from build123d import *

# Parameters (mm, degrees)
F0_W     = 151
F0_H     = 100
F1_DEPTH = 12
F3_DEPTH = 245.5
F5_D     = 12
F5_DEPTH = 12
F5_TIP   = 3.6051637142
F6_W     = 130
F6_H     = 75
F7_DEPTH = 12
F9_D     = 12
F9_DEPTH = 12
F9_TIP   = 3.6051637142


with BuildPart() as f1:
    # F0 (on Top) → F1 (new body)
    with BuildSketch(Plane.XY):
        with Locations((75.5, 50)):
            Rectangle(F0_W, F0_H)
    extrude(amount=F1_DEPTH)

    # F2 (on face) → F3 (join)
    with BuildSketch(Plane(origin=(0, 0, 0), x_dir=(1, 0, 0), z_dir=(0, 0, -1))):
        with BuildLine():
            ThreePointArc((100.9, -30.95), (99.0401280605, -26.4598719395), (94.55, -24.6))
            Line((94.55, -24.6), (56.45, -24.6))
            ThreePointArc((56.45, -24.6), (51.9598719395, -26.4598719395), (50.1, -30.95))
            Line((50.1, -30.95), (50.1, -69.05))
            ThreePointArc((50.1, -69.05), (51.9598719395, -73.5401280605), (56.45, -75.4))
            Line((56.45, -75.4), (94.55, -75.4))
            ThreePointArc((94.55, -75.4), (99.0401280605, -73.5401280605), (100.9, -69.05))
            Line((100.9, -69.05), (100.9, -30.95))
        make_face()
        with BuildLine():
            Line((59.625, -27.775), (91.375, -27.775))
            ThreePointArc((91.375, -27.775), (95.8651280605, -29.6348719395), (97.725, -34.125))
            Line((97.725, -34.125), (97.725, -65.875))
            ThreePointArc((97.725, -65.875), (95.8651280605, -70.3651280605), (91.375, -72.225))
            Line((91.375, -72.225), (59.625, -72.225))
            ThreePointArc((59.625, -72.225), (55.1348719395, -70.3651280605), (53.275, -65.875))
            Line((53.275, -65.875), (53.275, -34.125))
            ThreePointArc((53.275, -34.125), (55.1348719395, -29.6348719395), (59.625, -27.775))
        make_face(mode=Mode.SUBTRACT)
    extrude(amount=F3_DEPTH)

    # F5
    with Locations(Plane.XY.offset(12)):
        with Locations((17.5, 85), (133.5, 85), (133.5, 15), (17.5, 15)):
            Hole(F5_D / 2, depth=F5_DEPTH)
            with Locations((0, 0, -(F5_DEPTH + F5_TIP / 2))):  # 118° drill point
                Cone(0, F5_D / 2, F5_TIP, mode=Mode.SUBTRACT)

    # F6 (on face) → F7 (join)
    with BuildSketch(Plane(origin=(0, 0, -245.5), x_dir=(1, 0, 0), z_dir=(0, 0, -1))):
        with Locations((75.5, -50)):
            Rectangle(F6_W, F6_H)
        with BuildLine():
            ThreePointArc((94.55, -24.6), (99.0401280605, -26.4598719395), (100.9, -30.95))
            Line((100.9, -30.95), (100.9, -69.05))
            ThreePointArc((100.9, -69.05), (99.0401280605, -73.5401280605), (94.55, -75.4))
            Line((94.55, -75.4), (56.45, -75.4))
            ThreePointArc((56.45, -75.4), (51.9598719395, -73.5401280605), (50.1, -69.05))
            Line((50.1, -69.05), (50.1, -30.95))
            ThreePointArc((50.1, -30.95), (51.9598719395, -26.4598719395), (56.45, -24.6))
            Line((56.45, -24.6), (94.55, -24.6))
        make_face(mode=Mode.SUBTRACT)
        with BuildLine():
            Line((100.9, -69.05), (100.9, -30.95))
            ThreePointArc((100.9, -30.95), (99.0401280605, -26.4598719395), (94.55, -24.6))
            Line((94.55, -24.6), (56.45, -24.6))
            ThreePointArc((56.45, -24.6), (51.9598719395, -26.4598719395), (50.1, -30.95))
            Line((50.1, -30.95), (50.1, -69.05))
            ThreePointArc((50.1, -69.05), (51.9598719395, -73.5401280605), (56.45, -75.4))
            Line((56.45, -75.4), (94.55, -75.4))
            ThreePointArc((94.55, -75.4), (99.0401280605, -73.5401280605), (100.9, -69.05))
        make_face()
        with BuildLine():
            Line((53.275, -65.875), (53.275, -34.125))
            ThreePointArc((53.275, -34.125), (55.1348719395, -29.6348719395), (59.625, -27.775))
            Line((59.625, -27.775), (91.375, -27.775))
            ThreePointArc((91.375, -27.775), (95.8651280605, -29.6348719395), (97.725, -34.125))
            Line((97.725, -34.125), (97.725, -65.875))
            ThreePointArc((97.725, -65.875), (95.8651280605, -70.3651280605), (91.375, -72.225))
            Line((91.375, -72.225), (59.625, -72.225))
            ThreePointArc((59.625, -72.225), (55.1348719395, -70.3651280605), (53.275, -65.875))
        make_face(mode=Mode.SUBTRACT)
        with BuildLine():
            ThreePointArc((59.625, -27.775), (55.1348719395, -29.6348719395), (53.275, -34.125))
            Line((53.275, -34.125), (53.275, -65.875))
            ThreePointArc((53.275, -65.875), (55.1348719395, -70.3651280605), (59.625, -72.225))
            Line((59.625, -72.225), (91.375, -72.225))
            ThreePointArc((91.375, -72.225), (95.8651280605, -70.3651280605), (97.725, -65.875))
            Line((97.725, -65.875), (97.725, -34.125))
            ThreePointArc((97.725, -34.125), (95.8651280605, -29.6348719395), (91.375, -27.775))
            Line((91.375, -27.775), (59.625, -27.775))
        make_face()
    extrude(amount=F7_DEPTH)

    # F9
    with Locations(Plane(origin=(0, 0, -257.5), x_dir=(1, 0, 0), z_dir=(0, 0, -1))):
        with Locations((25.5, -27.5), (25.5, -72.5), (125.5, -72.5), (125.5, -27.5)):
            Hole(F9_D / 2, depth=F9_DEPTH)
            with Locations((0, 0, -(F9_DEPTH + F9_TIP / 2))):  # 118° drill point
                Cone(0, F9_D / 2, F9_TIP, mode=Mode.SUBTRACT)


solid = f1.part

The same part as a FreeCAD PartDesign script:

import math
import FreeCAD as App
import Part
import Sketcher


def add_polygon(sketch, points):
    """Adds a closed chain of lines whose ends are joined by coincident constraints."""
    first, n = sketch.GeometryCount, len(points)
    for a, b in zip(points, points[1:] + points[:1]):
        sketch.addGeometry(Part.LineSegment(App.Vector(*a, 0), App.Vector(*b, 0)), False)
    for i in range(n):
        sketch.addConstraint(Sketcher.Constraint("Coincident", first + i, 2, first + (i + 1) % n, 1))

doc = App.newDocument("Part")
body = doc.addObject("PartDesign::Body", "Body")

sketch1 = body.newObject("Sketcher::SketchObject", "Sketch")
sketch1.AttachmentSupport = (doc.getObject("XY_Plane"), [""])
sketch1.MapMode = "FlatFace"
add_polygon(sketch1, [(0, 100), (0, 0), (151, 0), (151, 100)])
sketch1.addConstraint(Sketcher.Constraint("Vertical", 0))
sketch1.addConstraint(Sketcher.Constraint("Horizontal", 1))
sketch1.addConstraint(Sketcher.Constraint("Vertical", 2))
sketch1.addConstraint(Sketcher.Constraint("Horizontal", 3))
sketch1.addConstraint(Sketcher.Constraint("Coincident", 0, 2, -1, 1))
sketch1.addConstraint(Sketcher.Constraint("DistanceX", 1, 1, 1, 2, 151.0))
sketch1.addConstraint(Sketcher.Constraint("DistanceY", 0, 2, 0, 1, 100.0))
pad1 = body.newObject("PartDesign::Pad", "Pad")
pad1.Profile = sketch1
pad1.Length = 12

sketch2 = body.newObject("Sketcher::SketchObject", "Sketch001")
sketch2.AttachmentSupport = (doc.getObject("XY_Plane"), [""])
sketch2.MapMode = "FlatFace"
sketch2.addGeometry(Part.ArcOfCircle(Part.Circle(App.Vector(94.55, 30.95, 0), App.Vector(0, 0, 1), 6.35), math.radians(-90), math.radians(0)), False)
sketch2.addGeometry(Part.LineSegment(App.Vector(94.55, 24.6, 0), App.Vector(56.45, 24.6, 0)), False)
sketch2.addGeometry(Part.ArcOfCircle(Part.Circle(App.Vector(56.45, 30.95, 0), App.Vector(0, 0, 1), 6.35), math.radians(180), math.radians(270)), False)
sketch2.addGeometry(Part.LineSegment(App.Vector(50.1, 30.95, 0), App.Vector(50.1, 69.05, 0)), False)
sketch2.addGeometry(Part.ArcOfCircle(Part.Circle(App.Vector(56.45, 69.05, 0), App.Vector(0, 0, 1), 6.35), math.radians(90), math.radians(180)), False)
sketch2.addGeometry(Part.LineSegment(App.Vector(56.45, 75.4, 0), App.Vector(94.55, 75.4, 0)), False)
sketch2.addGeometry(Part.ArcOfCircle(Part.Circle(App.Vector(94.55, 69.05, 0), App.Vector(0, 0, 1), 6.35), math.radians(0), math.radians(90)), False)
sketch2.addGeometry(Part.LineSegment(App.Vector(100.9, 69.05, 0), App.Vector(100.9, 30.95, 0)), False)
sketch2.addGeometry(Part.ArcOfCircle(Part.Circle(App.Vector(59.625, 34.125, 0), App.Vector(0, 0, 1), 6.35), math.radians(180), math.radians(270)), False)
sketch2.addGeometry(Part.LineSegment(App.Vector(59.625, 27.775, 0), App.Vector(91.375, 27.775, 0)), False)
sketch2.addGeometry(Part.ArcOfCircle(Part.Circle(App.Vector(91.375, 34.125, 0), App.Vector(0, 0, 1), 6.35), math.radians(-90), math.radians(0)), False)
sketch2.addGeometry(Part.LineSegment(App.Vector(97.725, 34.125, 0), App.Vector(97.725, 65.875, 0)), False)
sketch2.addGeometry(Part.ArcOfCircle(Part.Circle(App.Vector(91.375, 65.875, 0), App.Vector(0, 0, 1), 6.35), math.radians(0), math.radians(90)), False)
sketch2.addGeometry(Part.LineSegment(App.Vector(91.375, 72.225, 0), App.Vector(59.625, 72.225, 0)), False)
sketch2.addGeometry(Part.ArcOfCircle(Part.Circle(App.Vector(59.625, 65.875, 0), App.Vector(0, 0, 1), 6.35), math.radians(90), math.radians(180)), False)
sketch2.addGeometry(Part.LineSegment(App.Vector(53.275, 65.875, 0), App.Vector(53.275, 34.125, 0)), False)
sketch2.addConstraint(Sketcher.Constraint("Tangent", 0, 1, 1, 1))
sketch2.addConstraint(Sketcher.Constraint("Tangent", 1, 2, 2, 2))
sketch2.addConstraint(Sketcher.Constraint("Tangent", 2, 1, 3, 1))
sketch2.addConstraint(Sketcher.Constraint("Tangent", 3, 2, 4, 2))
sketch2.addConstraint(Sketcher.Constraint("Tangent", 4, 1, 5, 1))
sketch2.addConstraint(Sketcher.Constraint("Tangent", 5, 2, 6, 2))
sketch2.addConstraint(Sketcher.Constraint("Tangent", 6, 1, 7, 1))
sketch2.addConstraint(Sketcher.Constraint("Tangent", 7, 2, 0, 2))
sketch2.addConstraint(Sketcher.Constraint("Tangent", 8, 2, 9, 1))
sketch2.addConstraint(Sketcher.Constraint("Tangent", 9, 2, 10, 1))
sketch2.addConstraint(Sketcher.Constraint("Tangent", 10, 2, 11, 1))
sketch2.addConstraint(Sketcher.Constraint("Tangent", 11, 2, 12, 1))
sketch2.addConstraint(Sketcher.Constraint("Tangent", 12, 2, 13, 1))
sketch2.addConstraint(Sketcher.Constraint("Tangent", 13, 2, 14, 1))
sketch2.addConstraint(Sketcher.Constraint("Tangent", 14, 2, 15, 1))
sketch2.addConstraint(Sketcher.Constraint("Tangent", 15, 2, 8, 1))
sketch2.addConstraint(Sketcher.Constraint("Horizontal", 1))
sketch2.addConstraint(Sketcher.Constraint("Vertical", 3))
sketch2.addConstraint(Sketcher.Constraint("Horizontal", 5))
sketch2.addConstraint(Sketcher.Constraint("Vertical", 7))
sketch2.addConstraint(Sketcher.Constraint("Horizontal", 9))
sketch2.addConstraint(Sketcher.Constraint("Vertical", 11))
sketch2.addConstraint(Sketcher.Constraint("Horizontal", 13))
sketch2.addConstraint(Sketcher.Constraint("Vertical", 15))
sketch2.addConstraint(Sketcher.Constraint("Equal", 0, 2))
sketch2.addConstraint(Sketcher.Constraint("Equal", 2, 4))
sketch2.addConstraint(Sketcher.Constraint("Equal", 4, 6))
sketch2.addConstraint(Sketcher.Constraint("Equal", 6, 8))
sketch2.addConstraint(Sketcher.Constraint("Equal", 8, 10))
sketch2.addConstraint(Sketcher.Constraint("Equal", 10, 12))
sketch2.addConstraint(Sketcher.Constraint("Equal", 12, 14))
sketch2.addConstraint(Sketcher.Constraint("Equal", 5, 3))
sketch2.addConstraint(Sketcher.Constraint("Equal", 13, 11))
sketch2.addConstraint(Sketcher.Constraint("Radius", 0, 6.35))
sketch2.addConstraint(Sketcher.Constraint("DistanceX", 1, 2, 1, 1, 38.1))
sketch2.addConstraint(Sketcher.Constraint("DistanceX", 9, 1, 9, 2, 31.75))
sketch2.addConstraint(Sketcher.Constraint("DistanceY", -1, 1, 0, 1, 24.6))
sketch2.addConstraint(Sketcher.Constraint("DistanceX", -1, 1, 2, 1, 50.1))
sketch2.addConstraint(Sketcher.Constraint("DistanceX", -1, 1, 8, 3, 59.625))
sketch2.addConstraint(Sketcher.Constraint("DistanceY", -1, 1, 8, 3, 34.125))
pad2 = body.newObject("PartDesign::Pad", "Pad001")
pad2.Profile = sketch2
pad2.Length = 245.5
pad2.Reversed = True

sketch3 = body.newObject("Sketcher::SketchObject", "Sketch002")
sketch3.AttachmentSupport = (doc.getObject("XY_Plane"), [""])
sketch3.MapMode = "FlatFace"
sketch3.AttachmentOffset = App.Placement(App.Vector(0, 0, 12), App.Rotation())
sketch3.addGeometry(Part.Circle(App.Vector(17.5, 85, 0), App.Vector(0, 0, 1), 6), False)
sketch3.addGeometry(Part.Circle(App.Vector(133.5, 85, 0), App.Vector(0, 0, 1), 6), False)
sketch3.addGeometry(Part.Circle(App.Vector(133.5, 15, 0), App.Vector(0, 0, 1), 6), False)
sketch3.addGeometry(Part.Circle(App.Vector(17.5, 15, 0), App.Vector(0, 0, 1), 6), False)
sketch3.addConstraint(Sketcher.Constraint("Equal", 0, 1))
sketch3.addConstraint(Sketcher.Constraint("Equal", 1, 2))
sketch3.addConstraint(Sketcher.Constraint("Equal", 2, 3))
sketch3.addConstraint(Sketcher.Constraint("Horizontal", 0, 3, 1, 3))
sketch3.addConstraint(Sketcher.Constraint("Horizontal", 2, 3, 3, 3))
sketch3.addConstraint(Sketcher.Constraint("Vertical", 1, 3, 2, 3))
sketch3.addConstraint(Sketcher.Constraint("Vertical", 0, 3, 3, 3))
sketch3.addConstraint(Sketcher.Constraint("Diameter", 0, 12.0))
sketch3.addConstraint(Sketcher.Constraint("DistanceY", -1, 1, 0, 3, 85.0))
sketch3.addConstraint(Sketcher.Constraint("DistanceY", -1, 1, 2, 3, 15.0))
sketch3.addConstraint(Sketcher.Constraint("DistanceX", 0, 3, 1, 3, 116.0))
sketch3.addConstraint(Sketcher.Constraint("DistanceX", -1, 1, 0, 3, 17.5))
doc.recompute()
hole = body.newObject("PartDesign::Hole", "Hole")
hole.Profile = sketch3
hole.ThreadType = "None"
hole.Diameter = 12
hole.DepthType = "Dimension"
hole.Depth = 12
hole.DrillPoint = "Angled"
hole.DrillPointAngle = 118

sketch4 = body.newObject("Sketcher::SketchObject", "Sketch003")
sketch4.AttachmentSupport = (doc.getObject("XY_Plane"), [""])
sketch4.MapMode = "FlatFace"
sketch4.AttachmentOffset = App.Placement(App.Vector(0, 0, -245.5), App.Rotation())
add_polygon(sketch4, [(10.5, 12.5), (10.5, 87.5), (140.5, 87.5), (140.5, 12.5)])
sketch4.addConstraint(Sketcher.Constraint("Vertical", 0))
sketch4.addConstraint(Sketcher.Constraint("Horizontal", 1))
sketch4.addConstraint(Sketcher.Constraint("Vertical", 2))
sketch4.addConstraint(Sketcher.Constraint("Horizontal", 3))
sketch4.addConstraint(Sketcher.Constraint("DistanceX", 1, 1, 1, 2, 130.0))
sketch4.addConstraint(Sketcher.Constraint("DistanceY", 0, 1, 0, 2, 75.0))
sketch4.addConstraint(Sketcher.Constraint("DistanceX", -1, 1, 0, 2, 10.5))
sketch4.addConstraint(Sketcher.Constraint("DistanceY", -1, 1, 0, 2, 87.5))
pad3 = body.newObject("PartDesign::Pad", "Pad002")
pad3.Profile = sketch4
pad3.Length = 12
pad3.Reversed = True

sketch5 = body.newObject("Sketcher::SketchObject", "Sketch004")
sketch5.AttachmentSupport = (doc.getObject("XY_Plane"), [""])
sketch5.MapMode = "FlatFace"
sketch5.AttachmentOffset = App.Placement(App.Vector(0, 0, -257.5), App.Rotation())
sketch5.addGeometry(Part.Circle(App.Vector(25.5, 27.5, 0), App.Vector(0, 0, 1), 6), False)
sketch5.addGeometry(Part.Circle(App.Vector(25.5, 72.5, 0), App.Vector(0, 0, 1), 6), False)
sketch5.addGeometry(Part.Circle(App.Vector(125.5, 72.5, 0), App.Vector(0, 0, 1), 6), False)
sketch5.addGeometry(Part.Circle(App.Vector(125.5, 27.5, 0), App.Vector(0, 0, 1), 6), False)
sketch5.addConstraint(Sketcher.Constraint("Equal", 0, 1))
sketch5.addConstraint(Sketcher.Constraint("Equal", 1, 2))
sketch5.addConstraint(Sketcher.Constraint("Equal", 2, 3))
sketch5.addConstraint(Sketcher.Constraint("Horizontal", 1, 3, 2, 3))
sketch5.addConstraint(Sketcher.Constraint("Horizontal", 0, 3, 3, 3))
sketch5.addConstraint(Sketcher.Constraint("Vertical", 0, 3, 1, 3))
sketch5.addConstraint(Sketcher.Constraint("Vertical", 2, 3, 3, 3))
sketch5.addConstraint(Sketcher.Constraint("Diameter", 0, 12.0))
sketch5.addConstraint(Sketcher.Constraint("DistanceY", 0, 3, 1, 3, 45.0))
sketch5.addConstraint(Sketcher.Constraint("DistanceX", 1, 3, 2, 3, 100.0))
sketch5.addConstraint(Sketcher.Constraint("DistanceX", -1, 1, 0, 3, 25.5))
sketch5.addConstraint(Sketcher.Constraint("DistanceY", -1, 1, 0, 3, 27.5))
doc.recompute()
hole2 = body.newObject("PartDesign::Hole", "Hole001")
hole2.Profile = sketch5
hole2.ThreadType = "None"
hole2.Diameter = 12
hole2.DepthType = "Dimension"
hole2.Depth = 12
hole2.DrillPoint = "Angled"
hole2.DrillPointAngle = 118
hole2.Reversed = True

doc.recompute()
